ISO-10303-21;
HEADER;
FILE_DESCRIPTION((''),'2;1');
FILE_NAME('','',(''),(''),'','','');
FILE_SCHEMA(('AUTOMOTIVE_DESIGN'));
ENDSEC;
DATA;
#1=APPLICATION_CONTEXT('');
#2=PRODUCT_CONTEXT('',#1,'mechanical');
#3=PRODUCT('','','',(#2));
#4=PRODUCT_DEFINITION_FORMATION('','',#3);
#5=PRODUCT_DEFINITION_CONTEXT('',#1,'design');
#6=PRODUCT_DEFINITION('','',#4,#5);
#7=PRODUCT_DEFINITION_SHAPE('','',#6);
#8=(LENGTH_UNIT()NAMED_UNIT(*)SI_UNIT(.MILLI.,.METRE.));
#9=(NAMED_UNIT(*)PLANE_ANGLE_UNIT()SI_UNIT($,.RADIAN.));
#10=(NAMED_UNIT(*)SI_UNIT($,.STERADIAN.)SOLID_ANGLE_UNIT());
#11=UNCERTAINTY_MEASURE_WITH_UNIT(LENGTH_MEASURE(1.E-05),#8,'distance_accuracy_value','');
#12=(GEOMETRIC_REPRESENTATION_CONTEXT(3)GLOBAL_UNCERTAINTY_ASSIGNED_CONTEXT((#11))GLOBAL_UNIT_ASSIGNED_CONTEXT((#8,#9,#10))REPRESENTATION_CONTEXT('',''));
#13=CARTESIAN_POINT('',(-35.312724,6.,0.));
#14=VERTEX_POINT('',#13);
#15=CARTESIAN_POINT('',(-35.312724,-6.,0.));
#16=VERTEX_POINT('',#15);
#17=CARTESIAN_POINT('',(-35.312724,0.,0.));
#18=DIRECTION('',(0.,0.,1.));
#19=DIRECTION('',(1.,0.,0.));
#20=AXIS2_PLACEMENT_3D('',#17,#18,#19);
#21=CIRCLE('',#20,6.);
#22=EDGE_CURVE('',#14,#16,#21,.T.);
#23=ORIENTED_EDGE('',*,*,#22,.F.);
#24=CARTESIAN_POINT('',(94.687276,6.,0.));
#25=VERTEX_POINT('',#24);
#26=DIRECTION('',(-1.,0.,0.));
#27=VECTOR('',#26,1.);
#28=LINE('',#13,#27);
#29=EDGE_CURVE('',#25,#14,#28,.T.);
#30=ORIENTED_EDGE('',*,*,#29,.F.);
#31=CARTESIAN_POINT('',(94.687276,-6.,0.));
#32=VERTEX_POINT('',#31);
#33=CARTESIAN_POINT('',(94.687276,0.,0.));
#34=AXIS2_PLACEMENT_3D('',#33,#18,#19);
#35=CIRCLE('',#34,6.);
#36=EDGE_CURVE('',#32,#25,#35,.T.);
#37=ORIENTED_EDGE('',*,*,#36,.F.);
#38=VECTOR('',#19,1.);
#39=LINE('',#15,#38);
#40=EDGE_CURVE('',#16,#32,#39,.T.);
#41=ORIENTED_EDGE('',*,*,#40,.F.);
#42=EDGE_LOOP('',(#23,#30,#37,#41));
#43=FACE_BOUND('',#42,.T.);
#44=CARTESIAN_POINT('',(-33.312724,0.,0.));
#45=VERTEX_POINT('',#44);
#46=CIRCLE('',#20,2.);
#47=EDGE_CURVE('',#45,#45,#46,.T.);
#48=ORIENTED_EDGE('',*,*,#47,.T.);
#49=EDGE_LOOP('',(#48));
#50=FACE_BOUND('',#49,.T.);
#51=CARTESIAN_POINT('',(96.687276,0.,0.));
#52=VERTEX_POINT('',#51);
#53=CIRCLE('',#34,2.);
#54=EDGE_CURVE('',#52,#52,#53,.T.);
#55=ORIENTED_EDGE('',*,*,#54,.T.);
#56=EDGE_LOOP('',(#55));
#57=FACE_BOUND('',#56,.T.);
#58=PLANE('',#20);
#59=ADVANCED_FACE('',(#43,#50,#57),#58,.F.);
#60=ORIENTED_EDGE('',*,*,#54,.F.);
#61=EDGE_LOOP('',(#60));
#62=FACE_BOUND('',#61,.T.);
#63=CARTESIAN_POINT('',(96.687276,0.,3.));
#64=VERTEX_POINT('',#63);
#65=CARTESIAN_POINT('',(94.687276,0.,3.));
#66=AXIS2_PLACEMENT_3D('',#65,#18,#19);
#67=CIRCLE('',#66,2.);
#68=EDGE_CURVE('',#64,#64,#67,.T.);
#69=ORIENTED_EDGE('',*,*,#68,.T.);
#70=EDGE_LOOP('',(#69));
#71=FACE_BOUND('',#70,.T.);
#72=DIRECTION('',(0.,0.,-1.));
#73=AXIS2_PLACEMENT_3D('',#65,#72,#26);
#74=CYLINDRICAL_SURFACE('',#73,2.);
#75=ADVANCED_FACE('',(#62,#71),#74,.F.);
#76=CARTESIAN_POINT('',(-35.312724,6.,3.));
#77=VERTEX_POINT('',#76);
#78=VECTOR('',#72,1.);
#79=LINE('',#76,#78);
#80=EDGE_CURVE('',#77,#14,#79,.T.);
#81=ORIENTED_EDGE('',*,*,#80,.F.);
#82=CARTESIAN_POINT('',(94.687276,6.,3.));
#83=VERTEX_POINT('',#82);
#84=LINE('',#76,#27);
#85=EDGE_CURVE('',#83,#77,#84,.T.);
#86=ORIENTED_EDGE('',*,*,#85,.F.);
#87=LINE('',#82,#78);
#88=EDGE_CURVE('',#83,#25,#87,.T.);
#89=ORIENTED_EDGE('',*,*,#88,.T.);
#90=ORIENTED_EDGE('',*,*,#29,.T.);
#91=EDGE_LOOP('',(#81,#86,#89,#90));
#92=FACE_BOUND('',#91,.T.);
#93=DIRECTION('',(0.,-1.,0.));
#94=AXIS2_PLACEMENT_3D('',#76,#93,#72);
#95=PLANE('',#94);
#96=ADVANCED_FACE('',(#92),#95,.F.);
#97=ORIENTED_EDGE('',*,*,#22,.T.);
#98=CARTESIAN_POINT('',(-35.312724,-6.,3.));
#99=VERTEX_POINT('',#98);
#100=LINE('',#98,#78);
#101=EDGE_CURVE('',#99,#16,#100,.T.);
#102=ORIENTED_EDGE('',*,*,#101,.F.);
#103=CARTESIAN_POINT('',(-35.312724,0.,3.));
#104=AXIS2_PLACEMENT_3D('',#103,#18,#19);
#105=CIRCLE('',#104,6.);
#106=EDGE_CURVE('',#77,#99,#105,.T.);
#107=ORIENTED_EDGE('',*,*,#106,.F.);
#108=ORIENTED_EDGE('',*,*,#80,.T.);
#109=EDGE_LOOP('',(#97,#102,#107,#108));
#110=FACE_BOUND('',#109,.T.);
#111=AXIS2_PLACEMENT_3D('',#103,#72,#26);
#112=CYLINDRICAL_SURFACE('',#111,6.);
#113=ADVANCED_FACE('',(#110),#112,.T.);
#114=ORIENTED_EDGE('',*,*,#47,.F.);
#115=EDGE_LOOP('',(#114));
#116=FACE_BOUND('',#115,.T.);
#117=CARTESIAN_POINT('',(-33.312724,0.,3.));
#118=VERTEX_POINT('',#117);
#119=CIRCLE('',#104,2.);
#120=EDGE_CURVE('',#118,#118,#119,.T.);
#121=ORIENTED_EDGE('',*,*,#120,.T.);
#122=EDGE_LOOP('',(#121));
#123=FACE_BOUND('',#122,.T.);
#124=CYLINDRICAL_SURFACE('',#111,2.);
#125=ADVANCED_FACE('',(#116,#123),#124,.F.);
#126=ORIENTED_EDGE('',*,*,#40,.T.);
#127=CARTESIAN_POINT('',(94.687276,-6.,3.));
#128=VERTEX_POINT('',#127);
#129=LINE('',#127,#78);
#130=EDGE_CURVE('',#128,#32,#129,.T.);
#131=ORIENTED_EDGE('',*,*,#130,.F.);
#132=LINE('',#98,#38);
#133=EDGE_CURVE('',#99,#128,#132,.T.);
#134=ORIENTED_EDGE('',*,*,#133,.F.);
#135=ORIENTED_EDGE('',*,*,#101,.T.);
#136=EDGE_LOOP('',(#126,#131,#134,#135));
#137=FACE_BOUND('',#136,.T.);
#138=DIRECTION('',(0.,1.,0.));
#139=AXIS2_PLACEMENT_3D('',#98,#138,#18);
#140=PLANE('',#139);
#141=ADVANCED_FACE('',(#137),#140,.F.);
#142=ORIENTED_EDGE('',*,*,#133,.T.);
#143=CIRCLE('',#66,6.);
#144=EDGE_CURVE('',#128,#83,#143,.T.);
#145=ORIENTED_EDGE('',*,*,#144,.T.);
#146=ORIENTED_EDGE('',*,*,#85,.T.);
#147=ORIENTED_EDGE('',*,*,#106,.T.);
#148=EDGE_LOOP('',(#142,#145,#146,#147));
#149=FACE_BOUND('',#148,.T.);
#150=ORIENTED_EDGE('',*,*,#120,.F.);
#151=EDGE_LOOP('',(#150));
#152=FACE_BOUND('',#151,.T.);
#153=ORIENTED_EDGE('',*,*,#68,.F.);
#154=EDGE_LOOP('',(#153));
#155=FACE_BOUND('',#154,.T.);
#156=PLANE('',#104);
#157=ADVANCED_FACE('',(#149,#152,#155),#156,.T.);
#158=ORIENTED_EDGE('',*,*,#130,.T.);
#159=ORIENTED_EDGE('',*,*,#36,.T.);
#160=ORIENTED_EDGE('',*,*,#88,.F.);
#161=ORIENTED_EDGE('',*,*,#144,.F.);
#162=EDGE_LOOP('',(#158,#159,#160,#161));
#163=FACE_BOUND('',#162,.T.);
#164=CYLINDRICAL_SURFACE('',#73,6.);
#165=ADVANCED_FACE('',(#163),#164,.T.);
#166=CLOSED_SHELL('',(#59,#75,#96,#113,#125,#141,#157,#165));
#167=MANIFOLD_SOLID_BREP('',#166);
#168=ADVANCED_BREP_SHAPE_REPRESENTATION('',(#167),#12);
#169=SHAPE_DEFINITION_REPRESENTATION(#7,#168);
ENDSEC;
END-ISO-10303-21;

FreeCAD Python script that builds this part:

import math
import FreeCAD as App
import Part
import Sketcher
from FreeCAD import Vector
Q = App.Units.Quantity

doc = App.newDocument("Part")
body = doc.addObject("PartDesign::Body", "Body")

sketch1 = body.newObject("Sketcher::SketchObject", "Sketch")
sketch1.AttachmentSupport = (doc.getObject("XY_Plane"), [""])
sketch1.MapMode = "FlatFace"
sketch1.addGeometry([
    Part.LineSegment(Vector(94.7, 6, 0), Vector(-35.3, 6, 0)),
    Part.ArcOfCircle(Part.Circle(Vector(-35.3, 0, 0), Vector(0, 0, 1), 6), math.radians(90), math.radians(270)),
    Part.LineSegment(Vector(-35.3, -6, 0), Vector(94.7, -6, 0)),
    Part.ArcOfCircle(Part.Circle(Vector(94.7, 0, 0), Vector(0, 0, 1), 6), math.radians(-90), math.radians(90)),
    Part.Circle(Vector(94.7, 0, 0), Vector(0, 0, 1), 2),
    Part.Circle(Vector(-35.3, 0, 0), Vector(0, 0, 1), 2),
], False)
sketch1.addConstraint([
    Sketcher.Constraint("Tangent", 0, 2, 1, 1),
    Sketcher.Constraint("Tangent", 1, 2, 2, 1),
    Sketcher.Constraint("Tangent", 2, 2, 3, 1),
    Sketcher.Constraint("Tangent", 3, 2, 0, 1),
    Sketcher.Constraint("Horizontal", 0),
    Sketcher.Constraint("Horizontal", 2),
    Sketcher.Constraint("Coincident", 4, 3, 3, 3),
    Sketcher.Constraint("Coincident", 5, 3, 1, 3),
    Sketcher.Constraint("Equal", 4, 5),
    Sketcher.Constraint("PointOnObject", 1, 3, -1),
    Sketcher.Constraint("Diameter", 4, Q("4 mm")),
    Sketcher.Constraint("Radius", 1, Q("6 mm")),
    Sketcher.Constraint("DistanceX", 0, 2, 0, 1, Q("130 mm")),
    Sketcher.Constraint("DistanceX", 1, 3, -1, 1, Q("35.312724 mm")),
])
pad1 = body.newObject("PartDesign::Pad", "Pad")
pad1.Profile = sketch1
pad1.Length = 3

doc.recompute()
